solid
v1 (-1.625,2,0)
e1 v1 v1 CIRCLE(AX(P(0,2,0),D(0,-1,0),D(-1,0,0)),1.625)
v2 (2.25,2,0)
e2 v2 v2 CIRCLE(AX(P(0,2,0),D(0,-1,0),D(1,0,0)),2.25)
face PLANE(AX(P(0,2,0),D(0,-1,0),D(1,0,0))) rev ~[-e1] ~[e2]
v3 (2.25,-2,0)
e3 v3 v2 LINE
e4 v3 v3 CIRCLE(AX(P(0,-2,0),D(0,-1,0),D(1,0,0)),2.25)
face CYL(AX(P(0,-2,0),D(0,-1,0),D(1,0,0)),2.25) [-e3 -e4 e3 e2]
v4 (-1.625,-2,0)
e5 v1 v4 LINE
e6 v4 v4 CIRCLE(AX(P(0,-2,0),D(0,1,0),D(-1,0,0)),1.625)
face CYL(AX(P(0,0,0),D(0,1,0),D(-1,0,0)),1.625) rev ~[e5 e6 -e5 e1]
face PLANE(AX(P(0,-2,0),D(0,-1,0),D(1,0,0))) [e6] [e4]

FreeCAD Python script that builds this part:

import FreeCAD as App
import Part
import Sketcher

V = App.Vector
Q = App.Units.Quantity

doc = App.newDocument("Part")
body = doc.addObject("PartDesign::Body", "Body")

# Sketch on XZ plane
sketch1 = doc.addObject("Sketcher::SketchObject", "Sketch")
body.addObject(sketch1)
sketch1.AttachmentSupport = (doc.XZ_Plane, [""])
sketch1.MapMode = "FlatFace"
sketch1.addGeometry([
    Part.Circle(V(0, 0, 0), V(0, 0, 1), 2),
    Part.Circle(V(0, 0, 0), V(0, 0, 1), 1.6),
], False)
sketch1.addConstraint([
    Sketcher.Constraint("Coincident", 0, 3, -1, 1),
    Sketcher.Constraint("Coincident", 1, 3, -1, 1),
    Sketcher.Constraint("Diameter", 0, Q("4 mm")),
    Sketcher.Constraint("Diameter", 1, Q("3.25 mm")),
])
pad1 = doc.addObject("PartDesign::Pad", "Pad")
body.addObject(pad1)
pad1.Profile = sketch1
pad1.Length = 4
pad1.Midplane = True

# Sketch on XZ plane
sketch2 = doc.addObject("Sketcher::SketchObject", "Sketch001")
body.addObject(sketch2)
sketch2.AttachmentSupport = (doc.XZ_Plane, [""])
sketch2.MapMode = "FlatFace"
sketch2.AttachmentOffset = App.Placement(V(0, 0, 2), App.Rotation())
sketch2.addGeometry([
    Part.Circle(V(0, 0, 0), V(0, 0, 1), 2.2),
    Part.Circle(V(0, 0, 0), V(0, 0, 1), 1.6),
], False)
sketch2.addConstraint([
    Sketcher.Constraint("Coincident", 0, 3, -1, 1),
    Sketcher.Constraint("Coincident", 1, 3, -1, 1),
    Sketcher.Constraint("Diameter", 0, Q("4.5 mm")),
    Sketcher.Constraint("Diameter", 1, Q("3.25 mm")),
])
pad2 = doc.addObject("PartDesign::Pad", "Pad001")
body.addObject(pad2)
pad2.Profile = sketch2
pad2.Length = 4
pad2.Reversed = True

doc.recompute()
